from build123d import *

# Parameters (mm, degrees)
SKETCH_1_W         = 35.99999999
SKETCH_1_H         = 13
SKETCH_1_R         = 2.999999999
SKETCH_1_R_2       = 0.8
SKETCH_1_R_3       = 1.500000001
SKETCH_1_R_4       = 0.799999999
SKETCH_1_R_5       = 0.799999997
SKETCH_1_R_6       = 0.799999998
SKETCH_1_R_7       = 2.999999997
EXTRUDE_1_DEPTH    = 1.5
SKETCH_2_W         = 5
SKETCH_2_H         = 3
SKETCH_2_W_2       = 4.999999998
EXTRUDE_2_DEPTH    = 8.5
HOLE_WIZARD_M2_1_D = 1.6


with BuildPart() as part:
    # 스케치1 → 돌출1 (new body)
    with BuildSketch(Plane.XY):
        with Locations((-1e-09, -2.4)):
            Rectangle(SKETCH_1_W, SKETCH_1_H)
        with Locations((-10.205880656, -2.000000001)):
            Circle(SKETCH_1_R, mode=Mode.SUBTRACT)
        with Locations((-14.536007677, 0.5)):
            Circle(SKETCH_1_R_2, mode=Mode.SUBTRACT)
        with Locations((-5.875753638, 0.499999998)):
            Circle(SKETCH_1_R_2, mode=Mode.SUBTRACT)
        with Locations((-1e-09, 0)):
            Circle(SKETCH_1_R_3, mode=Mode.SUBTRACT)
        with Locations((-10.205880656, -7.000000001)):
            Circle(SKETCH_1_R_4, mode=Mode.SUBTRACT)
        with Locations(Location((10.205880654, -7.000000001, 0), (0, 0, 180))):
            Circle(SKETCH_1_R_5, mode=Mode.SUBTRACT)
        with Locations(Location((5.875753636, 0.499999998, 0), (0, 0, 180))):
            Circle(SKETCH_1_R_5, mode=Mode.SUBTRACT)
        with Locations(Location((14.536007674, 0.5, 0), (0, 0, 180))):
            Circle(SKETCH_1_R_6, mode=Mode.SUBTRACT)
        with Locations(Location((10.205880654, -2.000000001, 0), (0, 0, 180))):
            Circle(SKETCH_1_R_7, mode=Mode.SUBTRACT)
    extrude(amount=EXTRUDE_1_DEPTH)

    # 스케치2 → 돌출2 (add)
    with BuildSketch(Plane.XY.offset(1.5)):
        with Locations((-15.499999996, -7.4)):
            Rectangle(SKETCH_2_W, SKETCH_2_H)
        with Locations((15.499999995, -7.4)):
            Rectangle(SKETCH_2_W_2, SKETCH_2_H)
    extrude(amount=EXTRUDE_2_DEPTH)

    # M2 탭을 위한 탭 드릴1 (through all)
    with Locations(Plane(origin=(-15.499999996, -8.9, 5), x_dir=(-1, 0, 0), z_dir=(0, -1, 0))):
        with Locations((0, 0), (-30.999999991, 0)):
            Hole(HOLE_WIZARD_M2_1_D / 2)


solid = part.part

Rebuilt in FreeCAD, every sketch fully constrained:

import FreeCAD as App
import Part
import Sketcher

V = App.Vector


def add_polygon(sketch, points):
    """Adds a closed chain of lines whose ends are joined by coincident constraints."""
    first, n = sketch.GeometryCount, len(points)
    for a, b in zip(points, points[1:] + points[:1]):
        sketch.addGeometry(Part.LineSegment(App.Vector(*a, 0), App.Vector(*b, 0)), False)
    for i in range(n):
        sketch.addConstraint(Sketcher.Constraint("Coincident", first + i, 2, first + (i + 1) % n, 1))

doc = App.newDocument("Part")
body = doc.addObject("PartDesign::Body", "Body")

# Sketch on XY plane
sketch1 = doc.addObject("Sketcher::SketchObject", "Sketch")
body.addObject(sketch1)
sketch1.AttachmentSupport = (doc.XY_Plane, [""])
sketch1.MapMode = "FlatFace"
add_polygon(sketch1, [(-18, 4.1), (-18, -8.9), (18, -8.9), (18, 4.1)])  # lines 0-3
sketch1.addGeometry(Part.Circle(V(-10.2, -7, 0), V(0, 0, 1), 0.8), False)  # 4
sketch1.addGeometry(Part.Circle(V(10.2, -7, 0), V(0, 0, 1), 0.8), False)  # 5
sketch1.addGeometry(Part.Circle(V(-10.2, -2, 0), V(0, 0, 1), 3), False)  # 6
sketch1.addGeometry(Part.Circle(V(-14.5, 0.5, 0), V(0, 0, 1), 0.8), False)  # 7
sketch1.addGeometry(Part.Circle(V(-5.9, 0.5, 0), V(0, 0, 1), 0.8), False)  # 8
sketch1.addGeometry(Part.Circle(V(10.2, -2, 0), V(0, 0, 1), 3), False)  # 9
sketch1.addGeometry(Part.Circle(V(0, 0, 0), V(0, 0, 1), 1.5), False)  # 10
sketch1.addGeometry(Part.Circle(V(5.9, 0.5, 0), V(0, 0, 1), 0.8), False)  # 11
sketch1.addGeometry(Part.Circle(V(14.5, 0.5, 0), V(0, 0, 1), 0.8), False)  # 12
sketch1.addConstraint([
    Sketcher.Constraint("Vertical", 0),
    Sketcher.Constraint("Horizontal", 1),
    Sketcher.Constraint("Vertical", 2),
    Sketcher.Constraint("Horizontal", 3),
    Sketcher.Constraint("Coincident", 10, 3, -1, 1),
    Sketcher.Constraint("Equal", 4, 5),
    Sketcher.Constraint("Equal", 5, 7),
    Sketcher.Constraint("Equal", 7, 8),
    Sketcher.Constraint("Equal", 6, 9),
    Sketcher.Constraint("Equal", 8, 11),
    Sketcher.Constraint("Equal", 11, 12),
    Sketcher.Constraint("Symmetric", 4, 3, 5, 3, -2),
    Sketcher.Constraint("Symmetric", 6, 3, 9, 3, -2),
    Sketcher.Constraint("Symmetric", 8, 3, 11, 3, -2),
    Sketcher.Constraint("Symmetric", 7, 3, 12, 3, -2),
    Sketcher.Constraint("Horizontal", 7, 3, 8, 3),
    Sketcher.Constraint("Vertical", 4, 3, 6, 3),
    Sketcher.Constraint("Diameter", 6, 6.0),
    Sketcher.Constraint("Diameter", 10, 3.0),
    Sketcher.Constraint("Diameter", 4, 1.6),
    Sketcher.Constraint("DistanceX", 1, 1, 1, 2, 36.0),
    Sketcher.Constraint("DistanceY", 0, 2, 0, 1, 13.0),
    Sketcher.Constraint("DistanceY", 4, 3, -1, 1, 7.0),
    Sketcher.Constraint("DistanceY", 6, 3, -1, 1, 2.0),
    Sketcher.Constraint("DistanceX", 0, 2, -1, 1, 18.0),
    Sketcher.Constraint("DistanceY", -1, 1, 7, 3, 0.5),
    Sketcher.Constraint("DistanceY", 0, 2, -1, 1, 8.9),
    Sketcher.Constraint("DistanceX", 4, 3, -1, 1, 10.205881),
    Sketcher.Constraint("DistanceX", 7, 3, 5, 3, 24.741888),
    Sketcher.Constraint("DistanceX", 8, 3, 12, 3, 20.411761),
])
pad1 = doc.addObject("PartDesign::Pad", "Pad")
body.addObject(pad1)
pad1.Profile = sketch1
pad1.Length = 1.5

# Sketch on XY plane
sketch2 = doc.addObject("Sketcher::SketchObject", "Sketch001")
body.addObject(sketch2)
sketch2.AttachmentSupport = (doc.XY_Plane, [""])
sketch2.MapMode = "FlatFace"
sketch2.AttachmentOffset = App.Placement(V(0, 0, 1.5), App.Rotation())
add_polygon(sketch2, [(-18, -5.9), (-18, -8.9), (-13, -8.9), (-13, -5.9)])  # lines 0-3
add_polygon(sketch2, [(13, -5.9), (13, -8.9), (18, -8.9), (18, -5.9)])  # lines 4-7
sketch2.addConstraint([
    Sketcher.Constraint("Vertical", 0),
    Sketcher.Constraint("Horizontal", 1),
    Sketcher.Constraint("Vertical", 2),
    Sketcher.Constraint("Horizontal", 3),
    Sketcher.Constraint("Vertical", 4),
    Sketcher.Constraint("Horizontal", 5),
    Sketcher.Constraint("Vertical", 6),
    Sketcher.Constraint("Horizontal", 7),
    Sketcher.Constraint("Symmetric", 1, 2, 4, 2, -2),
    Sketcher.Constraint("Symmetric", 3, 2, 6, 2, -2),
    Sketcher.Constraint("DistanceX", 1, 1, 1, 2, 5.0),
    Sketcher.Constraint("DistanceY", 0, 2, 0, 1, 3.0),
    Sketcher.Constraint("DistanceX", 0, 2, -1, 1, 18.0),
    Sketcher.Constraint("DistanceY", 0, 2, -1, 1, 8.9),
])
pad2 = doc.addObject("PartDesign::Pad", "Pad001")
body.addObject(pad2)
pad2.Profile = sketch2
pad2.Length = 8.5

# Sketch on XZ plane
sketch3 = doc.addObject("Sketcher::SketchObject", "Sketch002")
body.addObject(sketch3)
sketch3.AttachmentSupport = (doc.XZ_Plane, [""])
sketch3.MapMode = "FlatFace"
sketch3.AttachmentOffset = App.Placement(V(0, 0, 8.9), App.Rotation())
sketch3.addGeometry([
    Part.Circle(V(-15.5, 5, 0), V(0, 0, 1), 0.8),
    Part.Circle(V(15.5, 5, 0), V(0, 0, 1), 0.8),
], False)
sketch3.addConstraint([
    Sketcher.Constraint("Equal", 0, 1),
    Sketcher.Constraint("Symmetric", 0, 3, 1, 3, -2),
    Sketcher.Constraint("Diameter", 0, 1.6),
    Sketcher.Constraint("DistanceY", -1, 1, 0, 3, 5.0),
    Sketcher.Constraint("DistanceX", 0, 3, 1, 3, 31.0),
])
doc.recompute()
hole = doc.addObject("PartDesign::Hole", "Hole")
body.addObject(hole)
hole.Profile = sketch3
hole.ThreadType = "None"
hole.Diameter = 1.6
hole.DepthType = "ThroughAll"

doc.recompute()
